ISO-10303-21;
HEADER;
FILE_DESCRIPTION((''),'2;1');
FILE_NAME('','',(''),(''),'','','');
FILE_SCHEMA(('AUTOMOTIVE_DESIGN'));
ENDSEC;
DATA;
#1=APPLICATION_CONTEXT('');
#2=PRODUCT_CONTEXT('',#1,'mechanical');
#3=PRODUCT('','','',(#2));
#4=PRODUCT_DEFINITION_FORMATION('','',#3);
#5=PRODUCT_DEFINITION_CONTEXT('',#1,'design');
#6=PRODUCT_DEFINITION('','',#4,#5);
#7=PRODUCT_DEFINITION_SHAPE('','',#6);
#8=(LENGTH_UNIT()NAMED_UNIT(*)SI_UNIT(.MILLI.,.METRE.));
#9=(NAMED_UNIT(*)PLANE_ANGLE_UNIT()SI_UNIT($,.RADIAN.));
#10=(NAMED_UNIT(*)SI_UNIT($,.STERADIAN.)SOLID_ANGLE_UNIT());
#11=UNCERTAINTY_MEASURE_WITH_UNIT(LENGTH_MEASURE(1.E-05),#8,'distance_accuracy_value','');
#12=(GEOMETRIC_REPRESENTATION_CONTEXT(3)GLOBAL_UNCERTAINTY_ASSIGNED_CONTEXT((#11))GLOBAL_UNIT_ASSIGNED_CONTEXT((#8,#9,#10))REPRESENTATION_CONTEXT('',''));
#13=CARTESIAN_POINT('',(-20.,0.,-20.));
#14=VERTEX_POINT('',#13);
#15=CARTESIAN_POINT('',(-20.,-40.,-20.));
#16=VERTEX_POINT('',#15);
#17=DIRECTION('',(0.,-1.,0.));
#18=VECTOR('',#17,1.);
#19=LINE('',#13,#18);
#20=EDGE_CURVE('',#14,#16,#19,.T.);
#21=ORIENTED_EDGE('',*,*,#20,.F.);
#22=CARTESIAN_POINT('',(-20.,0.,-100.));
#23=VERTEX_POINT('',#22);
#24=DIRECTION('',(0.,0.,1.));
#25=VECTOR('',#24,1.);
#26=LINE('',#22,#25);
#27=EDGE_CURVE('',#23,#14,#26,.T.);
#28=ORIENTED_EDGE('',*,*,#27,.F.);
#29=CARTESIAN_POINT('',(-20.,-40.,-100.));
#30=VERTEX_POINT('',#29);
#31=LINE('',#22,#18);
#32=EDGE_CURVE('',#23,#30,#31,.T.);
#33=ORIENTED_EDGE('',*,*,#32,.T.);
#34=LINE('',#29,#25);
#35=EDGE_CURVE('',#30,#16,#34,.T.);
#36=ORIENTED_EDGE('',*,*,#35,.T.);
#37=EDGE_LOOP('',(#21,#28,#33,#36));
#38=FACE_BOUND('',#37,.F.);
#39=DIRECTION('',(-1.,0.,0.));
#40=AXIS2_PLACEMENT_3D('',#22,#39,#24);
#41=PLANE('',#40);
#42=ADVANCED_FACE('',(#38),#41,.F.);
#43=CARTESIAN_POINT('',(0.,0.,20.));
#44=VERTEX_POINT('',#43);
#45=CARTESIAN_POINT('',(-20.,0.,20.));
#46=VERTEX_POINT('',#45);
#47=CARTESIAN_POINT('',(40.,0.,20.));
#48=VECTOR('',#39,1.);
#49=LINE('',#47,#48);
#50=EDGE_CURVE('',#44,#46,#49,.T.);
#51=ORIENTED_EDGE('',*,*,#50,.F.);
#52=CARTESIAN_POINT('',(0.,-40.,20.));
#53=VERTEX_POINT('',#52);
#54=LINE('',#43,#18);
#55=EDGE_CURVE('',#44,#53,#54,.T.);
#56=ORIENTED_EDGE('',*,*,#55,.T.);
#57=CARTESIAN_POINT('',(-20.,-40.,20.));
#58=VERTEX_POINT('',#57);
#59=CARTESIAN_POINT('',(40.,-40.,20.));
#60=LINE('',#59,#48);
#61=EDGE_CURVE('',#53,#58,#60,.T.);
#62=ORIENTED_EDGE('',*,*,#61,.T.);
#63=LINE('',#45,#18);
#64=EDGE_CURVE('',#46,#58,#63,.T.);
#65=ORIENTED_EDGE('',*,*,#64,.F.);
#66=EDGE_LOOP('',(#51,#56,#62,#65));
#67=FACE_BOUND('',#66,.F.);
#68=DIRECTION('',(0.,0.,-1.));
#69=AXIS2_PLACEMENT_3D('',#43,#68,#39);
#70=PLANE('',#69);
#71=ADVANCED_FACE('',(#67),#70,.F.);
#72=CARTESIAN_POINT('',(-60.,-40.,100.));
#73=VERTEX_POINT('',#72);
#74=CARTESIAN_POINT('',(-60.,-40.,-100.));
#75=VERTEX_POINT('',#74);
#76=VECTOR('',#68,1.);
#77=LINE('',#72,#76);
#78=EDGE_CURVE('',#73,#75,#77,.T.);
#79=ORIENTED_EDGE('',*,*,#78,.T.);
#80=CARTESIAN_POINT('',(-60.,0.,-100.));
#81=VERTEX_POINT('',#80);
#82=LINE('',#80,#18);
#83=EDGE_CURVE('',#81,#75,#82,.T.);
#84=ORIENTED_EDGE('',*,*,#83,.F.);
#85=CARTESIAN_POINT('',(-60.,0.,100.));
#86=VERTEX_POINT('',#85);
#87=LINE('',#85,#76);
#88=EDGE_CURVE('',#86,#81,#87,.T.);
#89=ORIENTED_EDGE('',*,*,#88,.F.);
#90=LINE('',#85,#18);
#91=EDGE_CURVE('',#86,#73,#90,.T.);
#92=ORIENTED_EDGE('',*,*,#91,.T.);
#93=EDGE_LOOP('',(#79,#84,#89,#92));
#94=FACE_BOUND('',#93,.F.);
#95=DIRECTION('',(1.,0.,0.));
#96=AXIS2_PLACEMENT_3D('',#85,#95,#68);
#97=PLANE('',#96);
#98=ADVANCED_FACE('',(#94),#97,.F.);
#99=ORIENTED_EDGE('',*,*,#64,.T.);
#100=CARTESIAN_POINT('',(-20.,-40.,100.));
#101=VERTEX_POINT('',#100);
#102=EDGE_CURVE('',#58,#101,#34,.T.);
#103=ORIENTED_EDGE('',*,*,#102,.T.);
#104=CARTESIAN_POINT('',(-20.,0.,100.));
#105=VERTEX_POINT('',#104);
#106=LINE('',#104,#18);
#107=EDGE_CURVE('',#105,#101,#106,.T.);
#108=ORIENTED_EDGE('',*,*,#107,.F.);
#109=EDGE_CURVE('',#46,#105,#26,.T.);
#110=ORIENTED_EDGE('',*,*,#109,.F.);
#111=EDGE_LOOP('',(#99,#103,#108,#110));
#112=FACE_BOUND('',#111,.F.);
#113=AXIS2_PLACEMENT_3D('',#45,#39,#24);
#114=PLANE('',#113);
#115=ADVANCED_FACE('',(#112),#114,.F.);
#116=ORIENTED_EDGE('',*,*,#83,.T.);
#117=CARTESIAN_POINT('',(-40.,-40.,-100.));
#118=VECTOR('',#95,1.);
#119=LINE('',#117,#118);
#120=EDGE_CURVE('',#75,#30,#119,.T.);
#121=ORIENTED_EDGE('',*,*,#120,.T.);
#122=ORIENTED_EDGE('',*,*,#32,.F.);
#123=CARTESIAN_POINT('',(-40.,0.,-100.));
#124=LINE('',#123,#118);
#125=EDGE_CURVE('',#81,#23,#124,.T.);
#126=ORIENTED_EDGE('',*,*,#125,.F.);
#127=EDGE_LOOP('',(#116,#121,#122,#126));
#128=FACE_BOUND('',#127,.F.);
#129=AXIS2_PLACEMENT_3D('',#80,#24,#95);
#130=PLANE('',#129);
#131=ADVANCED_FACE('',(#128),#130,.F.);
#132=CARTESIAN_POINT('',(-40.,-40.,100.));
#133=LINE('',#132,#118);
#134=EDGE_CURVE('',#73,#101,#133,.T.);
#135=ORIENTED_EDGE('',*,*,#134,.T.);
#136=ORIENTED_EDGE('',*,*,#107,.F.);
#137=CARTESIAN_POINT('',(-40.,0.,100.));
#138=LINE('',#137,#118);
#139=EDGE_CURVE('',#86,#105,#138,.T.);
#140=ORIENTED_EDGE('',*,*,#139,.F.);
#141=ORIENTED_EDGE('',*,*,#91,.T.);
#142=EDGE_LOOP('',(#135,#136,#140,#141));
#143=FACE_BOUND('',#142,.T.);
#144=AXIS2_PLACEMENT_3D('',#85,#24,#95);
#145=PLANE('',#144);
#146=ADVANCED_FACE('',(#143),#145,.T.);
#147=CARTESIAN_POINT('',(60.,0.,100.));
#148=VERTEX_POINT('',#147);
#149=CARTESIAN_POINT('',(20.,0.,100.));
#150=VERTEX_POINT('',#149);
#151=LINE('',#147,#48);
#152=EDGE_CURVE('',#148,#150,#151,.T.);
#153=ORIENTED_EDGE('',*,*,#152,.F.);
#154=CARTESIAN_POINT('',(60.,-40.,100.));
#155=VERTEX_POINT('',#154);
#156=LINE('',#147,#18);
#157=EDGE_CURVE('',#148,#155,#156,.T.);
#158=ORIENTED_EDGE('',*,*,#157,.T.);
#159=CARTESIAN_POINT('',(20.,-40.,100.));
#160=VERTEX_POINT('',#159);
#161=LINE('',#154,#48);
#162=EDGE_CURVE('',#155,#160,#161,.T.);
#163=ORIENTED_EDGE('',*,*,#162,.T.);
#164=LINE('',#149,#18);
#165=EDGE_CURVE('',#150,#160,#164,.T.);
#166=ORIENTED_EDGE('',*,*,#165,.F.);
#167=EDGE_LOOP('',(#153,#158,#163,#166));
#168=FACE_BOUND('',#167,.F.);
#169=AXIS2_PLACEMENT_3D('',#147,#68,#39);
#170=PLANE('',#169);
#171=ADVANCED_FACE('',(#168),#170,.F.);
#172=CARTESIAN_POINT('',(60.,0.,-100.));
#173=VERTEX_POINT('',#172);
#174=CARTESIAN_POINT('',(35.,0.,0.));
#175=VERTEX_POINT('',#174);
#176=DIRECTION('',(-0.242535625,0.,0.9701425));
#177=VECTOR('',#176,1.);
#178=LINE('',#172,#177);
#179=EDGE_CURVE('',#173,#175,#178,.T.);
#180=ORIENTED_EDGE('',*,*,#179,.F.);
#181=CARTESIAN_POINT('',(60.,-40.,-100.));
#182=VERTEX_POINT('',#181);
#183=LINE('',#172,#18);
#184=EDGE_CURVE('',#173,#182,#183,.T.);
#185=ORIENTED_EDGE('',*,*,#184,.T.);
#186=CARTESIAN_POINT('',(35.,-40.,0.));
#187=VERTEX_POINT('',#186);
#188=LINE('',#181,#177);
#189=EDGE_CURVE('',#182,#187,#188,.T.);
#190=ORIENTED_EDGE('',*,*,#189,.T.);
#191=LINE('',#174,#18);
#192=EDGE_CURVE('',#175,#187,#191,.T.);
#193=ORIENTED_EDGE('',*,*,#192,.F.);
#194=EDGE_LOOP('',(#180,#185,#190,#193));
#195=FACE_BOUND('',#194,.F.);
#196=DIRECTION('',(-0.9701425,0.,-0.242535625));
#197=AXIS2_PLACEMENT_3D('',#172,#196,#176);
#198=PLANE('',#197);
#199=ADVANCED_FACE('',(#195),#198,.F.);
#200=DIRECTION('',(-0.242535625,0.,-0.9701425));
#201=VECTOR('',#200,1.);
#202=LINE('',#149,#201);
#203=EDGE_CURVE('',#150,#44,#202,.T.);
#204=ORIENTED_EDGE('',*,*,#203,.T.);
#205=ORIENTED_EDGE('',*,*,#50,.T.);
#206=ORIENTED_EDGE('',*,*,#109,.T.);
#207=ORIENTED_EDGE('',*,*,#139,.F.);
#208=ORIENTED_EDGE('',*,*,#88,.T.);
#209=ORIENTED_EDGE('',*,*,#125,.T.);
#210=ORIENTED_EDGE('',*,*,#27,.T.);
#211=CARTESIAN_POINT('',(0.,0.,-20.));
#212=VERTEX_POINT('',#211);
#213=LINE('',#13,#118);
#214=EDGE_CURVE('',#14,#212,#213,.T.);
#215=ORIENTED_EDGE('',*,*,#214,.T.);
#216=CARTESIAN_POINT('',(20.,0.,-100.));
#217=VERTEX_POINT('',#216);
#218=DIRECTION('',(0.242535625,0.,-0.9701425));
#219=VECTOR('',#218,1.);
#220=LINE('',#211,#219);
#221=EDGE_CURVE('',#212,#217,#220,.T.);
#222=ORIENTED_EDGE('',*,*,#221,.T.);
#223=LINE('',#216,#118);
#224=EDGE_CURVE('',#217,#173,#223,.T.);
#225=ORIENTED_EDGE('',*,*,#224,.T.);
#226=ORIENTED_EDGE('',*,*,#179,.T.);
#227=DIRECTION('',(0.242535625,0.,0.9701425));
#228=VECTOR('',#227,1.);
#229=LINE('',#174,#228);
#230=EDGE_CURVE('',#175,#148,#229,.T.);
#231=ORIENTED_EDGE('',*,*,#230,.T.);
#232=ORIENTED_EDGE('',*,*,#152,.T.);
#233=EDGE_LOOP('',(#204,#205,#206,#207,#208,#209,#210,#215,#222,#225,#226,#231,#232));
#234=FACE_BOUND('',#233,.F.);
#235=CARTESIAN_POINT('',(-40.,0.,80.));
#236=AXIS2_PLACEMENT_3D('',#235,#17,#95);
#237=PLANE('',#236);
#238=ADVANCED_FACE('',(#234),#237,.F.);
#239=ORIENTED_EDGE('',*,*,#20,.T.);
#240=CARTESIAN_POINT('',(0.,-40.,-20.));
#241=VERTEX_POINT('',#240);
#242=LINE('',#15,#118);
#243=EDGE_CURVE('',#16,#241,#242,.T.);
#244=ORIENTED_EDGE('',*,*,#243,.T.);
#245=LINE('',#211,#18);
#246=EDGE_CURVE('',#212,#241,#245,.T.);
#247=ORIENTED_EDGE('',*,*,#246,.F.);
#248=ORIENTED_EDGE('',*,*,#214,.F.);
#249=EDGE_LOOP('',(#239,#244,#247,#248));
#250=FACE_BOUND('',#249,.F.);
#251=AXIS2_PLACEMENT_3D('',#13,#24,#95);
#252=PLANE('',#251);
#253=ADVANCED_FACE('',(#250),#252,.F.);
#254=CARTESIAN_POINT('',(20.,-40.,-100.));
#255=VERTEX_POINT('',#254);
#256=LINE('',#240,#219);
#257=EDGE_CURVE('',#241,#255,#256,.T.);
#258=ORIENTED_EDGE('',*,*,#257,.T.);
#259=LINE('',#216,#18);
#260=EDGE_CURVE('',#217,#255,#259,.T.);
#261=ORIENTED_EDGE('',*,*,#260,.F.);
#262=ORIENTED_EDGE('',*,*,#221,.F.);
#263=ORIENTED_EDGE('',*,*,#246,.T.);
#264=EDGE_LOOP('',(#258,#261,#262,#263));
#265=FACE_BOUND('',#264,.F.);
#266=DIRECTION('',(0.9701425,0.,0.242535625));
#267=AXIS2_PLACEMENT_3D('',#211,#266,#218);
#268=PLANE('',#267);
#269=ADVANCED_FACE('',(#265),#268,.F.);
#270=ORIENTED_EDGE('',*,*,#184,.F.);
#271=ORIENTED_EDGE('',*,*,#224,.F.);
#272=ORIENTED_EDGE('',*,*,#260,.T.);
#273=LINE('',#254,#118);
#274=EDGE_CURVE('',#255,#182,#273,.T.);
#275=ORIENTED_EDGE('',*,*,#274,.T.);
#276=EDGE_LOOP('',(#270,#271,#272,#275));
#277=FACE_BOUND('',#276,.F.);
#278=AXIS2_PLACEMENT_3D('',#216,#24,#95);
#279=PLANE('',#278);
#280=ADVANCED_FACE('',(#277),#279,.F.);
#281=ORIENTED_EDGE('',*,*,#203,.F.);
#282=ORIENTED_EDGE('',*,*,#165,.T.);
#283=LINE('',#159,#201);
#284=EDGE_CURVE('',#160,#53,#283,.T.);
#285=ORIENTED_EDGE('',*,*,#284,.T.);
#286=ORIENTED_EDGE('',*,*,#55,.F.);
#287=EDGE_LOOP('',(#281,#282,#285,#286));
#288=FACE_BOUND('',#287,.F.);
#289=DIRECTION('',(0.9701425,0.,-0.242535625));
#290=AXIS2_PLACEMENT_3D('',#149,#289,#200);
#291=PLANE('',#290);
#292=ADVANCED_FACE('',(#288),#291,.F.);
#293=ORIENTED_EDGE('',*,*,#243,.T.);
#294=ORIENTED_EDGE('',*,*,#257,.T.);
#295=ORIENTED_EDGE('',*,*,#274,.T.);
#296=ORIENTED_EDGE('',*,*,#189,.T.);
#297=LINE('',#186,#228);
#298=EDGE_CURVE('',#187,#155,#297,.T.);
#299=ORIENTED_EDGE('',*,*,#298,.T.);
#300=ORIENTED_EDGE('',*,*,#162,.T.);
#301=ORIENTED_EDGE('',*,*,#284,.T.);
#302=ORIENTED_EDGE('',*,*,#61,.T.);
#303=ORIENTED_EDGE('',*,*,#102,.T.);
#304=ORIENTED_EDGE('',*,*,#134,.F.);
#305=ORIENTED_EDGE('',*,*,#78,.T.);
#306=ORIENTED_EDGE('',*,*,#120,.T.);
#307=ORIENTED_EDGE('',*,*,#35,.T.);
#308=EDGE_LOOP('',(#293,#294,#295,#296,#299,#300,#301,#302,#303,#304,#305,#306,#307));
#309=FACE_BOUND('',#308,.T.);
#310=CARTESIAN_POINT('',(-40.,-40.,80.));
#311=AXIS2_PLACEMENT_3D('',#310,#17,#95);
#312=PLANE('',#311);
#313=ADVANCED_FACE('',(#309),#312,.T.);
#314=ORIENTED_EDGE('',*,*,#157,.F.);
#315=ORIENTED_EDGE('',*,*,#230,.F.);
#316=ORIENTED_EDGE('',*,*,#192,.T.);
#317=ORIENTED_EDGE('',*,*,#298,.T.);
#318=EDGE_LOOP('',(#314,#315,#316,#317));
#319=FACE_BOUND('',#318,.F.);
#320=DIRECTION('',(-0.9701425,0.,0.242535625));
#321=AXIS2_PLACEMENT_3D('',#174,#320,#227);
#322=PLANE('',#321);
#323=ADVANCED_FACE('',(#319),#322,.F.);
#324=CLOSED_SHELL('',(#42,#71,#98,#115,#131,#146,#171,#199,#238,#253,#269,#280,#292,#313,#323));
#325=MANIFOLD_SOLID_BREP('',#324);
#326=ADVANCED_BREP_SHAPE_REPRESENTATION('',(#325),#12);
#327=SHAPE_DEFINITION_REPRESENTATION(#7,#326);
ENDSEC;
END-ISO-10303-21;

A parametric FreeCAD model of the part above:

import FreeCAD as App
import Part
import Sketcher

V = App.Vector
Q = App.Units.Quantity


def add_polygon(sketch, points):
    """Adds a closed chain of lines whose ends are joined by coincident constraints."""
    first, n = sketch.GeometryCount, len(points)
    for a, b in zip(points, points[1:] + points[:1]):
        sketch.addGeometry(Part.LineSegment(App.Vector(*a, 0), App.Vector(*b, 0)), False)
    for i in range(n):
        sketch.addConstraint(Sketcher.Constraint("Coincident", first + i, 2, first + (i + 1) % n, 1))

doc = App.newDocument("Part")
body = doc.addObject("PartDesign::Body", "Body")

# Sketch on XZ plane
sketch1 = body.newObject("Sketcher::SketchObject", "Sketch")
sketch1.AttachmentSupport = (doc.getObject("XZ_Plane"), [""])
sketch1.MapMode = "FlatFace"
add_polygon(sketch1, [(-60, 100), (-60, -100), (-20, -100), (-20, -20), (0, -20), (20, -100), (60, -100), (35, 0), (60, 100), (20, 100), (0, 20), (-20, 20), (-20, 100)])  # lines 0-12
sketch1.addConstraint(Sketcher.Constraint("Vertical", 0))
sketch1.addConstraint(Sketcher.Constraint("Horizontal", 1))
sketch1.addConstraint(Sketcher.Constraint("Vertical", 2))
sketch1.addConstraint(Sketcher.Constraint("Horizontal", 3))
sketch1.addConstraint(Sketcher.Constraint("Horizontal", 5))
sketch1.addConstraint(Sketcher.Constraint("Horizontal", 8))
sketch1.addConstraint(Sketcher.Constraint("Horizontal", 10))
sketch1.addConstraint(Sketcher.Constraint("Vertical", 11))
sketch1.addConstraint(Sketcher.Constraint("Horizontal", 12))
sketch1.addConstraint(Sketcher.Constraint("Symmetric", 0, 2, 7, 2, -1, 1))
sketch1.addConstraint(Sketcher.Constraint("Symmetric", 3, 2, 9, 2, -1, 1))
sketch1.addConstraint(Sketcher.Constraint("Symmetric", 4, 2, 11, 2, -1, 1))
sketch1.addConstraint(Sketcher.Constraint("Symmetric", 1, 2, 4, 2, -2))
sketch1.addConstraint(Sketcher.Constraint("PointOnObject", 3, 2, -2))
sketch1.addConstraint(Sketcher.Constraint("PointOnObject", 6, 2, -1))
sketch1.addConstraint(Sketcher.Constraint("Parallel", 4, 6))
sketch1.addConstraint(Sketcher.Constraint("Parallel", 7, 9))
sketch1.addConstraint(Sketcher.Constraint("Vertical", 5, 2, 7, 2))
sketch1.addConstraint(Sketcher.Constraint("DistanceX", 1, 1, 1, 2, Q("40 mm")))
sketch1.addConstraint(Sketcher.Constraint("DistanceX", 3, 1, 3, 2, Q("20 mm")))
sketch1.addConstraint(Sketcher.Constraint("DistanceY", 0, 2, 0, 1, Q("200 mm")))
sketch1.addConstraint(Sketcher.Constraint("DistanceY", 2, 1, 2, 2, Q("80 mm")))
pad1 = body.newObject("PartDesign::Pad", "Pad")
pad1.Profile = sketch1
pad1.Length = 40

doc.recompute()
